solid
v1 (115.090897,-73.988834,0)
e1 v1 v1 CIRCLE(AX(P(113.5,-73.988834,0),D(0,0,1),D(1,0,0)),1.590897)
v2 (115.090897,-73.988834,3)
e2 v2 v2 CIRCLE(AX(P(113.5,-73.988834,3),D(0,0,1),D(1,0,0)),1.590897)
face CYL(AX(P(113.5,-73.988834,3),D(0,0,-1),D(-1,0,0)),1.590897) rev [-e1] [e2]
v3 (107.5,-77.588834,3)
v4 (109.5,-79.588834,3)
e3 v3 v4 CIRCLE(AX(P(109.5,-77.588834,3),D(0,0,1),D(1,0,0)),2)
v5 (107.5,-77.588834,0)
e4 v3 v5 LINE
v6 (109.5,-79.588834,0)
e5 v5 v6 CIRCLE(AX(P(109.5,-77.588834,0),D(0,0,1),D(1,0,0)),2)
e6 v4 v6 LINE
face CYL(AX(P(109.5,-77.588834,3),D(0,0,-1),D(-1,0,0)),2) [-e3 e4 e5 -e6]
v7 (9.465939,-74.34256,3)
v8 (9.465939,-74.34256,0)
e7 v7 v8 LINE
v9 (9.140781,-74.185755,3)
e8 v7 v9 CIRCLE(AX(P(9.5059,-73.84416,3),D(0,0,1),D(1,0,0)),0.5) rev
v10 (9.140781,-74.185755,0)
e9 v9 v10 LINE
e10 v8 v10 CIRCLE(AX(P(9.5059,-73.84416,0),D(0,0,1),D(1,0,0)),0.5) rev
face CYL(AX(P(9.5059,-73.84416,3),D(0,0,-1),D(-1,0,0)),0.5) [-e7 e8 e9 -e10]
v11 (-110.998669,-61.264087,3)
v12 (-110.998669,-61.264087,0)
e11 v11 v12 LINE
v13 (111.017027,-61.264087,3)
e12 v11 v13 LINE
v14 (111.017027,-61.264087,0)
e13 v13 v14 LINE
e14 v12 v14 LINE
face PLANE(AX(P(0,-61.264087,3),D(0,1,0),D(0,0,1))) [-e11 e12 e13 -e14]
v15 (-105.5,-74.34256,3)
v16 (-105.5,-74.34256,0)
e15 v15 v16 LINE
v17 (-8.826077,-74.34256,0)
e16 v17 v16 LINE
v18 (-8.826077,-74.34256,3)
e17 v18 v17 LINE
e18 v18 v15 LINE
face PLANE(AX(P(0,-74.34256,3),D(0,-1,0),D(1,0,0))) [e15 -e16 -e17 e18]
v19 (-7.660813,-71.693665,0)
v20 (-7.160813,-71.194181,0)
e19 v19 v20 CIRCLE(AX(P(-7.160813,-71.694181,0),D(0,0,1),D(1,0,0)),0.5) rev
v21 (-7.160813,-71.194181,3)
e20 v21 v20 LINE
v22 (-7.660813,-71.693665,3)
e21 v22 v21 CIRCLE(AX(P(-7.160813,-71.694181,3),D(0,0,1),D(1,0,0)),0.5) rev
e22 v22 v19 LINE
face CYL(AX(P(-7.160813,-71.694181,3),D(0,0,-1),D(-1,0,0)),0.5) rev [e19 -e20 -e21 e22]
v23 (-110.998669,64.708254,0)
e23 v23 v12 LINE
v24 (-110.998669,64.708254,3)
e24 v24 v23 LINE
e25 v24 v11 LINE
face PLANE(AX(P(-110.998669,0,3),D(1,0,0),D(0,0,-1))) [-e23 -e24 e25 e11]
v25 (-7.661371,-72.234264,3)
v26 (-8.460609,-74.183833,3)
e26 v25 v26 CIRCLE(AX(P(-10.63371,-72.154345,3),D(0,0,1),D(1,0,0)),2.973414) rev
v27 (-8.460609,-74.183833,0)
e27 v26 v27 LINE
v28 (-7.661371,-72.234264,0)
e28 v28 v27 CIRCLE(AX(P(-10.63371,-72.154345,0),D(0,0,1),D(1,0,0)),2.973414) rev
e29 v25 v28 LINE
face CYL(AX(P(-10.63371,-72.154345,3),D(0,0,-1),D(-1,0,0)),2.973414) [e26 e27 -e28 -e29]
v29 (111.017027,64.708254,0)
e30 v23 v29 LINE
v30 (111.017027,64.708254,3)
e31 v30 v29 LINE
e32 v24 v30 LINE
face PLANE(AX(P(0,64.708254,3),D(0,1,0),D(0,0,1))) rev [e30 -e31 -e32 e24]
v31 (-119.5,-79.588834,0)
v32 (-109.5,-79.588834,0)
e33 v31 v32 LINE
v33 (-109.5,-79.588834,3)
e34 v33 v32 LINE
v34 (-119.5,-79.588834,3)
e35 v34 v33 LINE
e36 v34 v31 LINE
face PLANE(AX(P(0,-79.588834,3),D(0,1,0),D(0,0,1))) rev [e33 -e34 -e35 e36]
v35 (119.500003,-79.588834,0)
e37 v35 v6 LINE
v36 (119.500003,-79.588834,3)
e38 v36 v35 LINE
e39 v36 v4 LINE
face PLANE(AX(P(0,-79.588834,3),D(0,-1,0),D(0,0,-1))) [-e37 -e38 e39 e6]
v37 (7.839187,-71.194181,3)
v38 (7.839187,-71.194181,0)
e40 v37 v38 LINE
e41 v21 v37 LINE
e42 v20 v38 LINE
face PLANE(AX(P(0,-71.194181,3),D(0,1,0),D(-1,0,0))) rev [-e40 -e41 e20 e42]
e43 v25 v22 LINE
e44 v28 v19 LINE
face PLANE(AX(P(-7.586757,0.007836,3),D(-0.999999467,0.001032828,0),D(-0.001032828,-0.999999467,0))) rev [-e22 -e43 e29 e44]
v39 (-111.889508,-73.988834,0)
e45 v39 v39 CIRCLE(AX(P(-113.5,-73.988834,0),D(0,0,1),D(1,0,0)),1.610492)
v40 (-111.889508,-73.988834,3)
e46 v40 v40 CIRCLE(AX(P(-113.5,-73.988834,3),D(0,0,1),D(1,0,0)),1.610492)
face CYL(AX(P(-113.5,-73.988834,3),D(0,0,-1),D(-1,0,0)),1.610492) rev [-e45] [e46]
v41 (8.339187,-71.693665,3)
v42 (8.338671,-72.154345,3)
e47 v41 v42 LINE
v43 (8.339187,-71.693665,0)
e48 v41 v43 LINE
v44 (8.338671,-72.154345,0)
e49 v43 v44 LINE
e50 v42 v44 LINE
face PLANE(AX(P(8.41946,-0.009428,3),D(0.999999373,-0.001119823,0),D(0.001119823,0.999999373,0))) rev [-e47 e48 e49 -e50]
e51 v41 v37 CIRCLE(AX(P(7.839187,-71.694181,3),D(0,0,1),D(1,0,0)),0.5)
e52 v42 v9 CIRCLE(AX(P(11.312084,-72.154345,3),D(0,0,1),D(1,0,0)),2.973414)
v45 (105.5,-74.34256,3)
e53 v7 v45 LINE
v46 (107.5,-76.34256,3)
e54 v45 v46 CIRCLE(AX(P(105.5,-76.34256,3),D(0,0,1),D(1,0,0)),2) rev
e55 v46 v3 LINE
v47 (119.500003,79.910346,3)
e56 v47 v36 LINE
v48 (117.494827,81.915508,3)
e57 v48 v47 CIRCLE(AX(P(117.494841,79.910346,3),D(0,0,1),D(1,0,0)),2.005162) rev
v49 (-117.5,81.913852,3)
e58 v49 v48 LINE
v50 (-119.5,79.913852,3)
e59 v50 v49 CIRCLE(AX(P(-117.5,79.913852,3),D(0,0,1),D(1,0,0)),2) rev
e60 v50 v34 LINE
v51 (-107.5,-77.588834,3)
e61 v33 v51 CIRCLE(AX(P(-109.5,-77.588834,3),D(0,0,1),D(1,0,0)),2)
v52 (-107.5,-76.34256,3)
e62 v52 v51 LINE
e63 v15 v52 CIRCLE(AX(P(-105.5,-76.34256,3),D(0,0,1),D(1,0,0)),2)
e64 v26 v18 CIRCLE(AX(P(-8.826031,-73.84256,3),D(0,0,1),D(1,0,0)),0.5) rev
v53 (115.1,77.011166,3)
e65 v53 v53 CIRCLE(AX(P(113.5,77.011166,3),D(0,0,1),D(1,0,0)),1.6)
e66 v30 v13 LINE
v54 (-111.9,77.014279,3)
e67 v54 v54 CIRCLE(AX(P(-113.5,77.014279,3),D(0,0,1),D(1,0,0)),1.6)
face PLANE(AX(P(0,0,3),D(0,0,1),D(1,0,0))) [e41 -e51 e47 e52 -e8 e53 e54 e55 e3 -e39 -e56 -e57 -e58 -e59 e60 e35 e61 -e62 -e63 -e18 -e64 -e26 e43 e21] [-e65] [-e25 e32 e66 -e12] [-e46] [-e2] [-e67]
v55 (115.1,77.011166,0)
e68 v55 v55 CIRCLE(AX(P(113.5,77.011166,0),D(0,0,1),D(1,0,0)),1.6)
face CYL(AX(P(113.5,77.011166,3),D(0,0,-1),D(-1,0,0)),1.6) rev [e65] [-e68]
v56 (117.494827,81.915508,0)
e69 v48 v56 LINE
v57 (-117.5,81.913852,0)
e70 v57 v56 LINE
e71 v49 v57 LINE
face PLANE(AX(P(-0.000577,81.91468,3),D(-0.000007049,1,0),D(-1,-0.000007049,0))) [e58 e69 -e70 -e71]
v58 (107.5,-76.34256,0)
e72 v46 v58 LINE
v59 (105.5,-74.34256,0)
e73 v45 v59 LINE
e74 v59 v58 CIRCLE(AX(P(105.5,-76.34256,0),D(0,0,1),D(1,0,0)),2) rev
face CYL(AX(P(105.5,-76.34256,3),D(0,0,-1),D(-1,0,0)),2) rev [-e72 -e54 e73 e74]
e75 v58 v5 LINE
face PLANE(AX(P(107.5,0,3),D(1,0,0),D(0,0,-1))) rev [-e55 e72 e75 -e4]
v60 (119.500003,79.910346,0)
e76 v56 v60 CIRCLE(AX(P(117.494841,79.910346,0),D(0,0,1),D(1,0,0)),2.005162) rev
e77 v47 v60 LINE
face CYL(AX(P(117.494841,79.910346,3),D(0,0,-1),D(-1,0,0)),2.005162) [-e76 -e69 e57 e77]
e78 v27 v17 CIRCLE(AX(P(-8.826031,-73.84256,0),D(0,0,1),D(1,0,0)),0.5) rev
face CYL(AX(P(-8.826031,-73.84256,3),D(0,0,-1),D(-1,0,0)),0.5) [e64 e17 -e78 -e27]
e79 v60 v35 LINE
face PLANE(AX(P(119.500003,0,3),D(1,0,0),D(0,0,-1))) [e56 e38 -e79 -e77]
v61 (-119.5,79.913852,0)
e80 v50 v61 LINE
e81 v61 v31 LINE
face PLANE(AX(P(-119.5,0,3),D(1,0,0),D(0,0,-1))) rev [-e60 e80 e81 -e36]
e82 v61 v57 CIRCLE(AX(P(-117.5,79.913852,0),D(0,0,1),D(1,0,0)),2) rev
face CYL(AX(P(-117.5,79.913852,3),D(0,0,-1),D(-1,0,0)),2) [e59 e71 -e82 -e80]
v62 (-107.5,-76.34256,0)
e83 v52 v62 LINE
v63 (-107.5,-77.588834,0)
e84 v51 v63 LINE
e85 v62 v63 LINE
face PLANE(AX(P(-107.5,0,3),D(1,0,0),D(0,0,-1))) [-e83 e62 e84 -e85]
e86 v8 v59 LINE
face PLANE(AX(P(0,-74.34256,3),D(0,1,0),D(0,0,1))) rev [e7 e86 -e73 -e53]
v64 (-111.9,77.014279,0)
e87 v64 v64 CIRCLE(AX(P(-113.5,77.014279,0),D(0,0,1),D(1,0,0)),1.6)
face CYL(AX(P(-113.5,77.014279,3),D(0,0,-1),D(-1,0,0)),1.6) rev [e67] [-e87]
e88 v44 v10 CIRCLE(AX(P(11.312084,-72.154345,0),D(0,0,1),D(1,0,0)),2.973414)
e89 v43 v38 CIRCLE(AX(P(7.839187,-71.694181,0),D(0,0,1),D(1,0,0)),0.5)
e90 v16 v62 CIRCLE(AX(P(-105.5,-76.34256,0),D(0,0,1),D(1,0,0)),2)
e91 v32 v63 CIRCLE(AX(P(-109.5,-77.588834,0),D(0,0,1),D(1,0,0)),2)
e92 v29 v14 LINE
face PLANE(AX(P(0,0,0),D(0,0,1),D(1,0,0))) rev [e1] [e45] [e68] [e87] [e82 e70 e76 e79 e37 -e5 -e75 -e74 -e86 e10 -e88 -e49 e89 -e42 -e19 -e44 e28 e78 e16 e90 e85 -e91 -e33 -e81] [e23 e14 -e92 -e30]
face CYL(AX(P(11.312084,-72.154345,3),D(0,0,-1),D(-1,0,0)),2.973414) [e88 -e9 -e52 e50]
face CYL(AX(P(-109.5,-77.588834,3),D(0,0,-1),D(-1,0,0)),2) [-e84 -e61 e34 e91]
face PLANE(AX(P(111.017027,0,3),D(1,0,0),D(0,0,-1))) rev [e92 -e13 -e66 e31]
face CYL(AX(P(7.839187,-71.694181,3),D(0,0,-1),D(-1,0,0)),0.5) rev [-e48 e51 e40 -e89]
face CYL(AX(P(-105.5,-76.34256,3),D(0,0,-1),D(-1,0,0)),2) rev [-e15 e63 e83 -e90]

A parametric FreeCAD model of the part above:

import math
import FreeCAD as App
import Part
import Sketcher

V = App.Vector
Q = App.Units.Quantity

doc = App.newDocument("Part")
params = doc.addObject("Spreadsheet::Sheet", "Params")
for row, (alias, value) in enumerate([
    ("sketch1_radius", "2 mm"),
    ("sketch1_diameter", "3.2 mm"),
    ("sketch1_radius2", "0.5 mm"),
    ("sketch1_width", "15 mm"),
    ("sketch1_width2", "10 mm"),
    ("pad1_length", "3 mm"),
], start=1):
    params.set(f"A{row}", alias)
    params.set(f"B{row}", "=" + value)
    params.setAlias(f"B{row}", alias)

body = doc.addObject("PartDesign::Body", "Body")

# Sketch on XY plane
sketch1 = body.newObject("Sketcher::SketchObject", "Sketch")
sketch1.AttachmentSupport = (doc.getObject("XY_Plane"), [""])
sketch1.MapMode = "FlatFace"
sketch1.addGeometry(Part.LineSegment(V(-105.5, -74.34, 0), V(-8.83, -74.34, 0)), False)
sketch1.addGeometry(Part.ArcOfCircle(Part.Circle(V(-8.83, -73.84, 0), V(0, 0, 1), 0.5), math.radians(-90), math.radians(-43)), False)
sketch1.addGeometry(Part.ArcOfCircle(Part.Circle(V(-10.63, -72.15, 0), V(0, 0, 1), 2.97), math.radians(-43), math.radians(-2)), False)
sketch1.addGeometry(Part.LineSegment(V(-7.66, -72.23, 0), V(-7.66, -71.69, 0)), False)
sketch1.addGeometry(Part.ArcOfCircle(Part.Circle(V(-7.16, -71.69, 0), V(0, 0, 1), 0.5), math.radians(90), math.radians(180)), False)
sketch1.addGeometry(Part.LineSegment(V(-7.16, -71.19, 0), V(7.84, -71.19, 0)), False)
sketch1.addGeometry(Part.ArcOfCircle(Part.Circle(V(7.84, -71.69, 0), V(0, 0, 1), 0.5), math.radians(0), math.radians(90)), False)
sketch1.addGeometry(Part.LineSegment(V(8.34, -71.69, 0), V(8.34, -72.15, 0)), False)
sketch1.addGeometry(Part.ArcOfCircle(Part.Circle(V(11.31, -72.15, 0), V(0, 0, 1), 2.97), math.radians(180), math.radians(223)), False)
sketch1.addGeometry(Part.ArcOfCircle(Part.Circle(V(9.51, -73.84, 0), V(0, 0, 1), 0.5), math.radians(-137), math.radians(-95)), False)
sketch1.addGeometry(Part.LineSegment(V(9.47, -74.34, 0), V(105.5, -74.34, 0)), False)
sketch1.addGeometry(Part.ArcOfCircle(Part.Circle(V(105.5, -76.34, 0), V(0, 0, 1), 2), math.radians(0), math.radians(90)), False)
sketch1.addGeometry(Part.LineSegment(V(107.5, -76.34, 0), V(107.5, -77.59, 0)), False)
sketch1.addGeometry(Part.ArcOfCircle(Part.Circle(V(109.5, -77.59, 0), V(0, 0, 1), 2), math.radians(-180), math.radians(-90)), False)
sketch1.addGeometry(Part.LineSegment(V(109.5, -79.59, 0), V(119.5, -79.59, 0)), False)
sketch1.addGeometry(Part.LineSegment(V(119.5, -79.59, 0), V(119.5, 79.91, 0)), False)
sketch1.addGeometry(Part.ArcOfCircle(Part.Circle(V(117.49, 79.91, 0), V(0, 0, 1), 2.01), math.radians(0), math.radians(90)), False)
sketch1.addGeometry(Part.LineSegment(V(117.49, 81.92, 0), V(-117.5, 81.91, 0)), False)
sketch1.addGeometry(Part.ArcOfCircle(Part.Circle(V(-117.5, 79.91, 0), V(0, 0, 1), 2), math.radians(90), math.radians(180)), False)
sketch1.addGeometry(Part.LineSegment(V(-119.5, 79.91, 0), V(-119.5, -79.59, 0)), False)
sketch1.addGeometry(Part.LineSegment(V(-119.5, -79.59, 0), V(-109.5, -79.59, 0)), False)
sketch1.addGeometry(Part.ArcOfCircle(Part.Circle(V(-109.5, -77.59, 0), V(0, 0, 1), 2), math.radians(-90), math.radians(0)), False)
sketch1.addGeometry(Part.LineSegment(V(-107.5, -77.59, 0), V(-107.5, -76.34, 0)), False)
sketch1.addGeometry(Part.ArcOfCircle(Part.Circle(V(-105.5, -76.34, 0), V(0, 0, 1), 2), math.radians(90), math.radians(180)), False)
sketch1.addGeometry(Part.Circle(V(-113.5, -73.99, 0), V(0, 0, 1), 1.61), False)
sketch1.addGeometry(Part.Circle(V(113.5, -73.99, 0), V(0, 0, 1), 1.59), False)
sketch1.addGeometry(Part.Circle(V(-113.5, 77.01, 0), V(0, 0, 1), 1.6), False)
sketch1.addGeometry(Part.LineSegment(V(111.02, -61.26, 0), V(-111, -61.26, 0)), False)
sketch1.addGeometry(Part.LineSegment(V(-111, -61.26, 0), V(-111, 64.71, 0)), False)
sketch1.addGeometry(Part.LineSegment(V(-111, 64.71, 0), V(111.02, 64.71, 0)), False)
sketch1.addGeometry(Part.LineSegment(V(111.02, 64.71, 0), V(111.02, -61.26, 0)), False)
sketch1.addGeometry(Part.Circle(V(113.5, 77.01, 0), V(0, 0, 1), 1.6), False)
sketch1.addConstraint(Sketcher.Constraint("Coincident", 0, 2, 1, 1))
sketch1.addConstraint(Sketcher.Constraint("Tangent", 1, 2, 2, 1))
sketch1.addConstraint(Sketcher.Constraint("Coincident", 2, 2, 3, 1))
sketch1.addConstraint(Sketcher.Constraint("Tangent", 3, 2, 4, 2))
sketch1.addConstraint(Sketcher.Constraint("Tangent", 4, 1, 5, 1))
sketch1.addConstraint(Sketcher.Constraint("Tangent", 5, 2, 6, 2))
sketch1.addConstraint(Sketcher.Constraint("Coincident", 6, 1, 7, 1))
sketch1.addConstraint(Sketcher.Constraint("Coincident", 7, 2, 8, 1))
sketch1.addConstraint(Sketcher.Constraint("Tangent", 8, 2, 9, 1))
sketch1.addConstraint(Sketcher.Constraint("Coincident", 9, 2, 10, 1))
sketch1.addConstraint(Sketcher.Constraint("Tangent", 10, 2, 11, 2))
sketch1.addConstraint(Sketcher.Constraint("Tangent", 11, 1, 12, 1))
sketch1.addConstraint(Sketcher.Constraint("Tangent", 12, 2, 13, 1))
sketch1.addConstraint(Sketcher.Constraint("Tangent", 13, 2, 14, 1))
sketch1.addConstraint(Sketcher.Constraint("Coincident", 14, 2, 15, 1))
sketch1.addConstraint(Sketcher.Constraint("Tangent", 15, 2, 16, 1))
sketch1.addConstraint(Sketcher.Constraint("Tangent", 16, 2, 17, 1))
sketch1.addConstraint(Sketcher.Constraint("Coincident", 17, 2, 18, 1))
sketch1.addConstraint(Sketcher.Constraint("Tangent", 18, 2, 19, 1))
sketch1.addConstraint(Sketcher.Constraint("Coincident", 19, 2, 20, 1))
sketch1.addConstraint(Sketcher.Constraint("Tangent", 20, 2, 21, 1))
sketch1.addConstraint(Sketcher.Constraint("Tangent", 21, 2, 22, 1))
sketch1.addConstraint(Sketcher.Constraint("Tangent", 22, 2, 23, 2))
sketch1.addConstraint(Sketcher.Constraint("Tangent", 23, 1, 0, 1))
sketch1.addConstraint(Sketcher.Constraint("Coincident", 27, 2, 28, 1))
sketch1.addConstraint(Sketcher.Constraint("Coincident", 28, 2, 29, 1))
sketch1.addConstraint(Sketcher.Constraint("Coincident", 29, 2, 30, 1))
sketch1.addConstraint(Sketcher.Constraint("Coincident", 30, 2, 27, 1))
sketch1.addConstraint(Sketcher.Constraint("Horizontal", 0))
sketch1.addConstraint(Sketcher.Constraint("Horizontal", 5))
sketch1.addConstraint(Sketcher.Constraint("Horizontal", 10))
sketch1.addConstraint(Sketcher.Constraint("Vertical", 12))
sketch1.addConstraint(Sketcher.Constraint("Horizontal", 14))
sketch1.addConstraint(Sketcher.Constraint("Vertical", 15))
sketch1.addConstraint(Sketcher.Constraint("Vertical", 19))
sketch1.addConstraint(Sketcher.Constraint("Horizontal", 20))
sketch1.addConstraint(Sketcher.Constraint("Vertical", 22))
sketch1.addConstraint(Sketcher.Constraint("Horizontal", 27))
sketch1.addConstraint(Sketcher.Constraint("Vertical", 28))
sketch1.addConstraint(Sketcher.Constraint("Horizontal", 29))
sketch1.addConstraint(Sketcher.Constraint("Vertical", 30))
sketch1.addConstraint(Sketcher.Constraint("Equal", 1, 4))
sketch1.addConstraint(Sketcher.Constraint("Equal", 4, 6))
sketch1.addConstraint(Sketcher.Constraint("Equal", 2, 8))
sketch1.addConstraint(Sketcher.Constraint("Equal", 6, 9))
sketch1.addConstraint(Sketcher.Constraint("Equal", 11, 13))
sketch1.addConstraint(Sketcher.Constraint("Equal", 13, 18))
sketch1.addConstraint(Sketcher.Constraint("Equal", 18, 21))
sketch1.addConstraint(Sketcher.Constraint("Equal", 21, 23))
sketch1.addConstraint(Sketcher.Constraint("Equal", 26, 31))
sketch1.addConstraint(Sketcher.Constraint("Symmetric", 13, 3, 21, 3, -2))
sketch1.addConstraint(Sketcher.Constraint("Symmetric", 24, 3, 25, 3, -2))
sketch1.addConstraint(Sketcher.Constraint("Horizontal", 2, 3, 8, 3))
sketch1.addConstraint(Sketcher.Constraint("Horizontal", 11, 3, 23, 3))
sketch1.addConstraint(Sketcher.Constraint("Horizontal", 3, 2, 6, 1))
sketch1.addConstraint(Sketcher.Constraint("Horizontal", 8, 3, 7, 2))
sketch1.addConstraint(Sketcher.Constraint("Vertical", 24, 3, 26, 3))
sketch1.addConstraint(Sketcher.Constraint("Vertical", 25, 3, 31, 3))
sketch1.addConstraint(Sketcher.Constraint("Vertical", 18, 3, 17, 2))
sketch1.addConstraint(Sketcher.Constraint("Radius", 11, Q("2 mm")))
sketch1.addConstraint(Sketcher.Constraint("Diameter", 26, Q("3.2 mm")))
sketch1.addConstraint(Sketcher.Constraint("Radius", 1, Q("0.5 mm")))
sketch1.addConstraint(Sketcher.Constraint("DistanceX", 5, 1, 5, 2, Q("15 mm")))
sketch1.addConstraint(Sketcher.Constraint("DistanceX", 20, 1, 20, 2, Q("10 mm")))
sketch1.addConstraint(Sketcher.Constraint("DistanceX", 24, 3, 21, 3, Q("4 mm")))
sketch1.addConstraint(Sketcher.Constraint("DistanceY", 25, 3, 31, 3, Q("151 mm")))
sketch1.addConstraint(Sketcher.Constraint("DistanceX", -1, 1, 11, 3, Q("105.5 mm")))
sketch1.addConstraint(Sketcher.Constraint("DistanceY", 21, 3, 24, 3, Q("3.6 mm")))
sketch1.addConstraint(Sketcher.Constraint("Radius", 16, Q("2.005162 mm")))
sketch1.addConstraint(Sketcher.Constraint("Diameter", 24, Q("3.220985 mm")))
sketch1.addConstraint(Sketcher.Constraint("Diameter", 25, Q("3.181795 mm")))
sketch1.addConstraint(Sketcher.Constraint("Radius", 2, Q("2.973414 mm")))
sketch1.addConstraint(Sketcher.Constraint("Distance", 3, Q("0.5406 mm")))
sketch1.addConstraint(Sketcher.Constraint("DistanceX", 10, 1, 10, 2, Q("96.034061 mm")))
sketch1.addConstraint(Sketcher.Constraint("DistanceY", 15, 1, 15, 2, Q("159.49918 mm")))
sketch1.addConstraint(Sketcher.Constraint("DistanceY", 28, 1, 28, 2, Q("125.972341 mm")))
sketch1.addConstraint(Sketcher.Constraint("DistanceX", -1, 1, 9, 3, Q("9.5059 mm")))
sketch1.addConstraint(Sketcher.Constraint("DistanceX", 2, 3, 1, 2, Q("2.173101 mm")))
sketch1.addConstraint(Sketcher.Constraint("DistanceY", 28, 2, 18, 3, Q("15.205598 mm")))
sketch1.addConstraint(Sketcher.Constraint("DistanceX", 29, 2, 16, 2, Q("6.4778 mm")))
sketch1.addConstraint(Sketcher.Constraint("Distance", 7, Q("0.46068 mm")))
sketch1.addConstraint(Sketcher.Constraint("DistanceX", 0, 1, 0, 2, Q("96.673923 mm")))
sketch1.addConstraint(Sketcher.Constraint("DistanceX", 14, 1, 14, 2, Q("10.000003 mm")))
sketch1.addConstraint(Sketcher.Constraint("DistanceX", 27, 2, 27, 1, Q("222.015696 mm")))
sketch1.addConstraint(Sketcher.Constraint("DistanceY", 12, 2, 12, 1, Q("1.246273 mm")))
sketch1.addConstraint(Sketcher.Constraint("DistanceY", 19, 2, 19, 1, Q("159.502686 mm")))
sketch1.addConstraint(Sketcher.Constraint("DistanceX", 1, 3, -1, 1, Q("8.826031 mm")))
sketch1.addConstraint(Sketcher.Constraint("DistanceY", 1, 3, -1, 1, Q("73.84256 mm")))
sketch1.addConstraint(Sketcher.Constraint("DistanceY", 4, 3, -1, 1, Q("71.694181 mm")))
sketch1.addConstraint(Sketcher.Constraint("DistanceY", -1, 1, 26, 3, Q("77.014279 mm")))
sketch1.setExpression("Constraints[59]", "Params.sketch1_radius")
sketch1.setExpression("Constraints[60]", "Params.sketch1_diameter")
sketch1.setExpression("Constraints[61]", "Params.sketch1_radius2")
sketch1.setExpression("Constraints[62]", "Params.sketch1_width")
sketch1.setExpression("Constraints[63]", "Params.sketch1_width2")
pad1 = body.newObject("PartDesign::Pad", "Pad")
pad1.Profile = sketch1
pad1.setExpression("Length", "Params.pad1_length")

doc.recompute()
